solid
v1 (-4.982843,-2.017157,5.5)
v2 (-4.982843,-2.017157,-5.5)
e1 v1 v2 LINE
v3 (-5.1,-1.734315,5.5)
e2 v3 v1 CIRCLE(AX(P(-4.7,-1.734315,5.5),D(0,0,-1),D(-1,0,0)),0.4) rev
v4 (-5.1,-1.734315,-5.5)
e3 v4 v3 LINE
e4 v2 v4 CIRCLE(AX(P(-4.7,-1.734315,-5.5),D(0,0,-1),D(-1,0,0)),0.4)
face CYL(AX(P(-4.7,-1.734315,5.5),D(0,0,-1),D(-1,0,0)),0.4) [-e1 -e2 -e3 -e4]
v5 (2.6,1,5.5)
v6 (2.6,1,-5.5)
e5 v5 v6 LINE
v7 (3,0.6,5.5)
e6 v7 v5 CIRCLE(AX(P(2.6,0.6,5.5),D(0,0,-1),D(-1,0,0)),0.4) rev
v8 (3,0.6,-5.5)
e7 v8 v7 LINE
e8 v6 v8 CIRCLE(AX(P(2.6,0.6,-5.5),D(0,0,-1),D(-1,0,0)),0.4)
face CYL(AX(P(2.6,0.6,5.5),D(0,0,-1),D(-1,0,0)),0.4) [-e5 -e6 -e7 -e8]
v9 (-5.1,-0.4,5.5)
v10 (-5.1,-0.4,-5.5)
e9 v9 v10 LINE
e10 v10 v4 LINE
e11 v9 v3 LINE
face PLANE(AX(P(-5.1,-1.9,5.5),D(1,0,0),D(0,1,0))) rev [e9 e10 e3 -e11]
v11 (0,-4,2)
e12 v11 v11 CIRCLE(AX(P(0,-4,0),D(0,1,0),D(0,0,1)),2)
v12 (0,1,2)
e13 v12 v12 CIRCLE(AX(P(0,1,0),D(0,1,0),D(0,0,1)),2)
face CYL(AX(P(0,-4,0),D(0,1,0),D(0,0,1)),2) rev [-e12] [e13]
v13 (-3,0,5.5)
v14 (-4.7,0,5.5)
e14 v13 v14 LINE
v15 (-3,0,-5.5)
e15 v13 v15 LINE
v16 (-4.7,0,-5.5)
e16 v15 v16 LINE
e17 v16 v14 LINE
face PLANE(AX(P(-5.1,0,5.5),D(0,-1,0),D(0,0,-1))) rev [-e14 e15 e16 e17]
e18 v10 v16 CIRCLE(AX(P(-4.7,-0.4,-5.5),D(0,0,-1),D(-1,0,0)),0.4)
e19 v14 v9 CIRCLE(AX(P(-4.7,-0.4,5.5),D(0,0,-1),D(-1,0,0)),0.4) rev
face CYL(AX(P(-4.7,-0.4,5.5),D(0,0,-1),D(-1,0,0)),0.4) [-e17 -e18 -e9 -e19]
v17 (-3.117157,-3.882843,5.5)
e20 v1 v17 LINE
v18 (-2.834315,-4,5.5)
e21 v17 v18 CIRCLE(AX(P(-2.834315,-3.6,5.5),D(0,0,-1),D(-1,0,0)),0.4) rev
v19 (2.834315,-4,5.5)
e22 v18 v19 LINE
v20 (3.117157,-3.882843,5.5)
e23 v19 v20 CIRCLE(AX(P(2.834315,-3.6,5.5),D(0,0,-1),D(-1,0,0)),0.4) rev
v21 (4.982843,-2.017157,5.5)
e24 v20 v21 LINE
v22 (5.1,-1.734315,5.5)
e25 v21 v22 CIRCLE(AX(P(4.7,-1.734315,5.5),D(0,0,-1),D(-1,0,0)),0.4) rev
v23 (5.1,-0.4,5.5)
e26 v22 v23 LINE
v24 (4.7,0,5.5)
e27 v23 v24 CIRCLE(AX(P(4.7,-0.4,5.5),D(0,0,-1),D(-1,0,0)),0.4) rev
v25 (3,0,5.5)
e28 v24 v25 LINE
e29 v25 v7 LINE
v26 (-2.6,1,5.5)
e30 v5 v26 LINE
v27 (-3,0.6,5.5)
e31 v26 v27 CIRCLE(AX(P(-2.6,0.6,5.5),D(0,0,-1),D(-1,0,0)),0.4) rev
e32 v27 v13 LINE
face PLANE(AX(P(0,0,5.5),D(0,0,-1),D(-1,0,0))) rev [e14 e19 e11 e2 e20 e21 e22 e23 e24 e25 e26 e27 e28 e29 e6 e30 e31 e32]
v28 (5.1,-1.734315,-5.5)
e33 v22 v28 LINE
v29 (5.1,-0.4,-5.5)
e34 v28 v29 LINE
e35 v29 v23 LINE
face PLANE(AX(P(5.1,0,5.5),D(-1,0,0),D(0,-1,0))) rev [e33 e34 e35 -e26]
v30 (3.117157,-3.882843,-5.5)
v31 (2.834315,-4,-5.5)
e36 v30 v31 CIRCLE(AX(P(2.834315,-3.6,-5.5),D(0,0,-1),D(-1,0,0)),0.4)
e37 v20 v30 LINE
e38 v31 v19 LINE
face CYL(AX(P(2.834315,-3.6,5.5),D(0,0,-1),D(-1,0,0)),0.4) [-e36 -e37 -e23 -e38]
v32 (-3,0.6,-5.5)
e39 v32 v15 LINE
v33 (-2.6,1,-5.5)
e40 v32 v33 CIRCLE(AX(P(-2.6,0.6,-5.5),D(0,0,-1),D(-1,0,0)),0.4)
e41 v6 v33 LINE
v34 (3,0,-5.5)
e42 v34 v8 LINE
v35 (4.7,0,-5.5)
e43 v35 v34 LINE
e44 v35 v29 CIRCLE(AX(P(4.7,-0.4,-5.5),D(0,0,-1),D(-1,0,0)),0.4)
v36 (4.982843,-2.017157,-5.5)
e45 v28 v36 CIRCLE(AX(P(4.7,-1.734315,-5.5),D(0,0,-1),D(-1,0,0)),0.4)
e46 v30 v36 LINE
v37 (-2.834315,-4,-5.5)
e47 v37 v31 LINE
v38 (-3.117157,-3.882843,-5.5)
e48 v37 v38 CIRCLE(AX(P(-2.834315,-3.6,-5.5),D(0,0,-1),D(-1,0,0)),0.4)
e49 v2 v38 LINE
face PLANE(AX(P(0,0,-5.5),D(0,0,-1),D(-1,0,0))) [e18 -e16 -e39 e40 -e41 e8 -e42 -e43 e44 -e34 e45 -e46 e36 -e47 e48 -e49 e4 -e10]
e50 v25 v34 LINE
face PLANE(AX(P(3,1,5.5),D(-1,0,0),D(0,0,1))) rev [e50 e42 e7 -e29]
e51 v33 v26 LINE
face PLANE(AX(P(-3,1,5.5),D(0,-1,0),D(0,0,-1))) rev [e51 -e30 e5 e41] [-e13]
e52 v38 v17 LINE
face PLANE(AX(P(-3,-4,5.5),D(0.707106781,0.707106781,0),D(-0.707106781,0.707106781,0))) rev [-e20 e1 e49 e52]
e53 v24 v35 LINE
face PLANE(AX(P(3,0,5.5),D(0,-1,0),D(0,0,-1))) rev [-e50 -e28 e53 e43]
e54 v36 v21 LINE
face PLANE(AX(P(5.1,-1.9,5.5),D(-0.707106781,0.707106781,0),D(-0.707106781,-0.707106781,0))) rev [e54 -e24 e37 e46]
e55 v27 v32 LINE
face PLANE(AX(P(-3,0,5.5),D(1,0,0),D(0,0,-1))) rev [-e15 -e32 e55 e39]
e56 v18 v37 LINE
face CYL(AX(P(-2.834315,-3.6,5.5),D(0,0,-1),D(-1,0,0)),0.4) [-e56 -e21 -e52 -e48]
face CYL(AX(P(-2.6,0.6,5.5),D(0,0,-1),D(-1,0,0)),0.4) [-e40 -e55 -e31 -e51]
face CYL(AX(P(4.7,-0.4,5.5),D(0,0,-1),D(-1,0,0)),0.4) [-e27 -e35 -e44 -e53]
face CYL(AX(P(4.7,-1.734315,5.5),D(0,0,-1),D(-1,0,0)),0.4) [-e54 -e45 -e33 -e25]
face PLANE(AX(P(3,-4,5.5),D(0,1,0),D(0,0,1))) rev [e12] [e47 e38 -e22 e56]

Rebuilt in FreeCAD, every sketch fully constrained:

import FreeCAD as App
import Part
import Sketcher

V = App.Vector


def edges_at(feature, points):
    """Names of the edges that pass closest to the given points."""
    edges = feature.Shape.Edges
    near = lambda p: min(range(len(edges)), key=lambda i: edges[i].distToShape(Part.Vertex(*p))[0])
    return sorted({f"Edge{near(p) + 1}" for p in points})

doc = App.newDocument("Part")
params = doc.addObject("Spreadsheet::Sheet", "Params")
for row, (alias, value) in enumerate([
    ("sketch1_width", "6 mm"),
    ("sketch1_height", "1 mm"),
    ("sketch1_width2", "2.1 mm"),
    ("sketch1_height2", "1.9 mm"),
    ("pad1_length", "11 mm"),
    ("sketch2_diameter", "4 mm"),
    ("fillet_radius", "0.4 mm"),
], start=1):
    params.set(f"A{row}", alias)
    params.set(f"B{row}", "=" + value)
    params.setAlias(f"B{row}", alias)

body = doc.addObject("PartDesign::Body", "Body")

# Sketch on XY plane
sketch1 = body.newObject("Sketcher::SketchObject", "Sketch")
sketch1.AttachmentSupport = (doc.getObject("XY_Plane"), [""])
sketch1.MapMode = "FlatFace"
sketch1.addGeometry([
    Part.LineSegment(V(-3, 0, 0), V(-5.1, 0, 0)),  # 0
    Part.LineSegment(V(-5.1, 0, 0), V(-5.1, -1.9, 0)),  # 1
    Part.LineSegment(V(-5.1, -1.9, 0), V(-3, -4, 0)),  # 2
    Part.LineSegment(V(-3, -4, 0), V(3, -4, 0)),  # 3
    Part.LineSegment(V(3, -4, 0), V(5.1, -1.9, 0)),  # 4
    Part.LineSegment(V(5.1, -1.9, 0), V(5.1, 0, 0)),  # 5
    Part.LineSegment(V(5.1, 0, 0), V(3, 0, 0)),  # 6
    Part.LineSegment(V(3, 0, 0), V(3, 1, 0)),  # 7
    Part.LineSegment(V(3, 1, 0), V(-3, 1, 0)),  # 8
    Part.LineSegment(V(-3, 1, 0), V(-3, 0, 0)),  # 9
], False)
sketch1.addConstraint([
    Sketcher.Constraint("Coincident", 0, 2, 1, 1),
    Sketcher.Constraint("Coincident", 1, 2, 2, 1),
    Sketcher.Constraint("Coincident", 2, 2, 3, 1),
    Sketcher.Constraint("Coincident", 3, 2, 4, 1),
    Sketcher.Constraint("Coincident", 4, 2, 5, 1),
    Sketcher.Constraint("Coincident", 5, 2, 6, 1),
    Sketcher.Constraint("Coincident", 6, 2, 7, 1),
    Sketcher.Constraint("Coincident", 7, 2, 8, 1),
    Sketcher.Constraint("Coincident", 8, 2, 9, 1),
    Sketcher.Constraint("Coincident", 9, 2, 0, 1),
    Sketcher.Constraint("Horizontal", 0),
    Sketcher.Constraint("Vertical", 1),
    Sketcher.Constraint("Horizontal", 3),
    Sketcher.Constraint("Vertical", 5),
    Sketcher.Constraint("Horizontal", 6),
    Sketcher.Constraint("Vertical", 7),
    Sketcher.Constraint("Horizontal", 8),
    Sketcher.Constraint("Vertical", 9),
    Sketcher.Constraint("Symmetric", 0, 2, 5, 2, -1, 1),
    Sketcher.Constraint("Symmetric", 6, 2, 9, 2, -2),
    Sketcher.Constraint("Perpendicular", 2, 4),
    Sketcher.Constraint("Horizontal", 1, 2, 4, 2),
    Sketcher.Constraint("Vertical", 3, 2, 6, 2),
    Sketcher.Constraint("Vertical", 2, 2, 8, 2),
    Sketcher.Constraint("DistanceX", 3, 1, 3, 2, 6.0),
    Sketcher.Constraint("DistanceY", 7, 1, 7, 2, 1.0),
    Sketcher.Constraint("DistanceX", 0, 2, 0, 1, 2.1),
    Sketcher.Constraint("DistanceY", 1, 2, 1, 1, 1.9),
])
sketch1.setExpression("Constraints[24]", "Params.sketch1_width")
sketch1.setExpression("Constraints[25]", "Params.sketch1_height")
sketch1.setExpression("Constraints[26]", "Params.sketch1_width2")
sketch1.setExpression("Constraints[27]", "Params.sketch1_height2")
pad1 = body.newObject("PartDesign::Pad", "Pad")
pad1.Profile = sketch1
pad1.setExpression("Length", "Params.pad1_length")
pad1.Midplane = True

# Sketch on XZ plane
sketch2 = body.newObject("Sketcher::SketchObject", "Sketch001")
sketch2.AttachmentSupport = (doc.getObject("XZ_Plane"), [""])
sketch2.MapMode = "FlatFace"
sketch2.AttachmentOffset = App.Placement(V(0, 0, -1), App.Rotation())
sketch2.addGeometry(Part.Circle(V(0, 0, 0), V(0, 0, 1), 2), False)
sketch2.addConstraint([
    Sketcher.Constraint("Coincident", 0, 3, -1, 1),
    Sketcher.Constraint("Diameter", 0, 4.0),
])
sketch2.setExpression("Constraints[1]", "Params.sketch2_diameter")
pocket1 = body.newObject("PartDesign::Pocket", "Pocket")
pocket1.Profile = sketch2
pocket1.Type = "ThroughAll"
pocket1.Reversed = True
doc.recompute()

fillet = body.newObject("PartDesign::Fillet", "Fillet")
fillet.Base = (pocket1, edges_at(pocket1, [
    (-5.1, 0, 0),
    (-3, 1, 0),
    (3, 1, 0),
    (5.1, 0, 0),
    (5.1, -1.9, 0),
    (3, -4, 0),
    (-3, -4, 0),
    (-5.1, -1.9, 0),
]))
fillet.setExpression("Radius", "Params.fillet_radius")

doc.recompute()
